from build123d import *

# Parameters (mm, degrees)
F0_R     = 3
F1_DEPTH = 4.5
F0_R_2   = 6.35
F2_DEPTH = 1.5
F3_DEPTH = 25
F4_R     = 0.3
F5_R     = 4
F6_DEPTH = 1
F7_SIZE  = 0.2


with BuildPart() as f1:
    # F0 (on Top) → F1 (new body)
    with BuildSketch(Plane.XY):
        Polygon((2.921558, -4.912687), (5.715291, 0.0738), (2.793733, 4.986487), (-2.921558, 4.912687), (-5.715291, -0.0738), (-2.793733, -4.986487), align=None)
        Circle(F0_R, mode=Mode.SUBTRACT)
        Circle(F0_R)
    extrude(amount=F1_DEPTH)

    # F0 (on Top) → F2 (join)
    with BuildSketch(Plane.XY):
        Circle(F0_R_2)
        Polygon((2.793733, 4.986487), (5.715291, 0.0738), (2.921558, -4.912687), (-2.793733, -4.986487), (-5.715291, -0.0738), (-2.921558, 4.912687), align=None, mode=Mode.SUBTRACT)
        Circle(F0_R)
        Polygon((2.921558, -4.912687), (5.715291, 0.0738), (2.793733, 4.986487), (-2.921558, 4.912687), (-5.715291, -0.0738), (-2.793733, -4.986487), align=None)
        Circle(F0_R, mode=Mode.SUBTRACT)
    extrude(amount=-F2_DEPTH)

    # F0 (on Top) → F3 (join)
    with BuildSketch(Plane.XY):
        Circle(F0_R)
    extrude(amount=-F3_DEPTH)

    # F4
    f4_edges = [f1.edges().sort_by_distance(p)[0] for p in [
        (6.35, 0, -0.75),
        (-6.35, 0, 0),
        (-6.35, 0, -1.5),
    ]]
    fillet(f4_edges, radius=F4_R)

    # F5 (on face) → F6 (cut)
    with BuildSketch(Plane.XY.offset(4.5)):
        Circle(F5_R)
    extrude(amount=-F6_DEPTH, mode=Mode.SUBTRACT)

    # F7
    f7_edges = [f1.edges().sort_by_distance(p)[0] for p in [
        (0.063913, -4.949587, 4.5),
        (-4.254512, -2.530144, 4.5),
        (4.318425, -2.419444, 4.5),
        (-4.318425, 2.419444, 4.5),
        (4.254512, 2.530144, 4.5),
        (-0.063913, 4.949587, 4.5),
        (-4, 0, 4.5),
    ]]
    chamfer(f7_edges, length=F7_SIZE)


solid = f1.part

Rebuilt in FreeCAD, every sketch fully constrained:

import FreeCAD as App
import Part
import Sketcher
Q = App.Units.Quantity


def edges_at(feature, points):
    """Names of the edges that pass closest to the given points."""
    edges = feature.Shape.Edges
    near = lambda p: min(range(len(edges)), key=lambda i: edges[i].distToShape(Part.Vertex(*p))[0])
    return sorted({f"Edge{near(p) + 1}" for p in points})

doc = App.newDocument("Part")
body = doc.addObject("PartDesign::Body", "Body")

# Sketch on XY plane
sketch1 = body.newObject("Sketcher::SketchObject", "Sketch")
sketch1.AttachmentSupport = (doc.getObject("XY_Plane"), [""])
sketch1.MapMode = "FlatFace"
sketch1.addGeometry(Part.LineSegment(App.Vector(3, -5, 0), App.Vector(6, 0, 0)), False)
sketch1.addGeometry(Part.LineSegment(App.Vector(6, 0, 0), App.Vector(3, 5, 0)), False)
sketch1.addGeometry(Part.LineSegment(App.Vector(3, 5, 0), App.Vector(-3, 5, 0)), False)
sketch1.addGeometry(Part.LineSegment(App.Vector(-3, 5, 0), App.Vector(-6, 0, 0)), False)
sketch1.addGeometry(Part.LineSegment(App.Vector(-6, 0, 0), App.Vector(-3, -5, 0)), False)
sketch1.addGeometry(Part.LineSegment(App.Vector(-3, -5, 0), App.Vector(3, -5, 0)), False)
sketch1.addConstraint(Sketcher.Constraint("Coincident", 0, 2, 1, 1))
sketch1.addConstraint(Sketcher.Constraint("Coincident", 1, 2, 2, 1))
sketch1.addConstraint(Sketcher.Constraint("Coincident", 2, 2, 3, 1))
sketch1.addConstraint(Sketcher.Constraint("Coincident", 3, 2, 4, 1))
sketch1.addConstraint(Sketcher.Constraint("Coincident", 4, 2, 5, 1))
sketch1.addConstraint(Sketcher.Constraint("Coincident", 5, 2, 0, 1))
sketch1.addConstraint(Sketcher.Constraint("Symmetric", 0, 2, 3, 2, -1, 1))
sketch1.addConstraint(Sketcher.Constraint("Symmetric", 1, 2, 4, 2, -1, 1))
sketch1.addConstraint(Sketcher.Constraint("Symmetric", 2, 2, 5, 2, -1, 1))
sketch1.addConstraint(Sketcher.Constraint("Equal", 0, 1))
sketch1.addConstraint(Sketcher.Constraint("Equal", 1, 2))
sketch1.addConstraint(Sketcher.Constraint("DistanceY", -1, 1, 0, 2, Q("0.0738 mm")))
sketch1.addConstraint(Sketcher.Constraint("DistanceY", 2, 2, 1, 2, Q("0.0738 mm")))
sketch1.addConstraint(Sketcher.Constraint("DistanceX", -1, 1, 0, 2, Q("5.715291 mm")))
sketch1.addConstraint(Sketcher.Constraint("DistanceX", 2, 2, -1, 1, Q("2.921558 mm")))
pad1 = body.newObject("PartDesign::Pad", "Pad")
pad1.Profile = sketch1
pad1.Length = 4.5

# Sketch on XY plane
sketch2 = body.newObject("Sketcher::SketchObject", "Sketch001")
sketch2.AttachmentSupport = (doc.getObject("XY_Plane"), [""])
sketch2.MapMode = "FlatFace"
sketch2.addGeometry(Part.Circle(App.Vector(0, 0, 0), App.Vector(0, 0, 1), 6.3), False)
sketch2.addGeometry(Part.Circle(App.Vector(0, 0, 0), App.Vector(0, 0, 1), 3), False)
sketch2.addConstraint(Sketcher.Constraint("Coincident", 0, 3, -1, 1))
sketch2.addConstraint(Sketcher.Constraint("Coincident", 1, 3, -1, 1))
sketch2.addConstraint(Sketcher.Constraint("Diameter", 1, Q("6 mm")))
sketch2.addConstraint(Sketcher.Constraint("Diameter", 0, Q("12.7 mm")))
pad2 = body.newObject("PartDesign::Pad", "Pad001")
pad2.Profile = sketch2
pad2.Length = 1.5
pad2.Reversed = True

# Sketch on XY plane
sketch3 = body.newObject("Sketcher::SketchObject", "Sketch002")
sketch3.AttachmentSupport = (doc.getObject("XY_Plane"), [""])
sketch3.MapMode = "FlatFace"
sketch3.addGeometry(Part.Circle(App.Vector(0, 0, 0), App.Vector(0, 0, 1), 3), False)
sketch3.addConstraint(Sketcher.Constraint("Coincident", 0, 3, -1, 1))
sketch3.addConstraint(Sketcher.Constraint("Diameter", 0, Q("6 mm")))
pad3 = body.newObject("PartDesign::Pad", "Pad002")
pad3.Profile = sketch3
pad3.Length = 25
pad3.Reversed = True
doc.recompute()

fillet = body.newObject("PartDesign::Fillet", "Fillet")
fillet.Base = (pad3, edges_at(pad3, [(6.35, 0, -0.75), (-6.35, 0, 0), (-6.35, 0, -1.5)]))
fillet.Radius = 0.3

# Sketch on XY plane
sketch4 = body.newObject("Sketcher::SketchObject", "Sketch003")
sketch4.AttachmentSupport = (doc.getObject("XY_Plane"), [""])
sketch4.MapMode = "FlatFace"
sketch4.AttachmentOffset = App.Placement(App.Vector(0, 0, 4.5), App.Rotation())
sketch4.addGeometry(Part.Circle(App.Vector(0, 0, 0), App.Vector(0, 0, 1), 4), False)
sketch4.addConstraint(Sketcher.Constraint("Coincident", 0, 3, -1, 1))
sketch4.addConstraint(Sketcher.Constraint("Diameter", 0, Q("8 mm")))
pocket1 = body.newObject("PartDesign::Pocket", "Pocket")
pocket1.Profile = sketch4
pocket1.Length = 1
doc.recompute()

chamfer = body.newObject("PartDesign::Chamfer", "Chamfer")
chamfer.Base = (pocket1, edges_at(pocket1, [
    (0.064, -4.95, 4.5),
    (-4.255, -2.53, 4.5),
    (4.318, -2.419, 4.5),
    (-4.318, 2.419, 4.5),
    (4.255, 2.53, 4.5),
    (-0.064, 4.95, 4.5),
    (-4, 0, 4.5),
]))
chamfer.Size = 0.2

doc.recompute()
